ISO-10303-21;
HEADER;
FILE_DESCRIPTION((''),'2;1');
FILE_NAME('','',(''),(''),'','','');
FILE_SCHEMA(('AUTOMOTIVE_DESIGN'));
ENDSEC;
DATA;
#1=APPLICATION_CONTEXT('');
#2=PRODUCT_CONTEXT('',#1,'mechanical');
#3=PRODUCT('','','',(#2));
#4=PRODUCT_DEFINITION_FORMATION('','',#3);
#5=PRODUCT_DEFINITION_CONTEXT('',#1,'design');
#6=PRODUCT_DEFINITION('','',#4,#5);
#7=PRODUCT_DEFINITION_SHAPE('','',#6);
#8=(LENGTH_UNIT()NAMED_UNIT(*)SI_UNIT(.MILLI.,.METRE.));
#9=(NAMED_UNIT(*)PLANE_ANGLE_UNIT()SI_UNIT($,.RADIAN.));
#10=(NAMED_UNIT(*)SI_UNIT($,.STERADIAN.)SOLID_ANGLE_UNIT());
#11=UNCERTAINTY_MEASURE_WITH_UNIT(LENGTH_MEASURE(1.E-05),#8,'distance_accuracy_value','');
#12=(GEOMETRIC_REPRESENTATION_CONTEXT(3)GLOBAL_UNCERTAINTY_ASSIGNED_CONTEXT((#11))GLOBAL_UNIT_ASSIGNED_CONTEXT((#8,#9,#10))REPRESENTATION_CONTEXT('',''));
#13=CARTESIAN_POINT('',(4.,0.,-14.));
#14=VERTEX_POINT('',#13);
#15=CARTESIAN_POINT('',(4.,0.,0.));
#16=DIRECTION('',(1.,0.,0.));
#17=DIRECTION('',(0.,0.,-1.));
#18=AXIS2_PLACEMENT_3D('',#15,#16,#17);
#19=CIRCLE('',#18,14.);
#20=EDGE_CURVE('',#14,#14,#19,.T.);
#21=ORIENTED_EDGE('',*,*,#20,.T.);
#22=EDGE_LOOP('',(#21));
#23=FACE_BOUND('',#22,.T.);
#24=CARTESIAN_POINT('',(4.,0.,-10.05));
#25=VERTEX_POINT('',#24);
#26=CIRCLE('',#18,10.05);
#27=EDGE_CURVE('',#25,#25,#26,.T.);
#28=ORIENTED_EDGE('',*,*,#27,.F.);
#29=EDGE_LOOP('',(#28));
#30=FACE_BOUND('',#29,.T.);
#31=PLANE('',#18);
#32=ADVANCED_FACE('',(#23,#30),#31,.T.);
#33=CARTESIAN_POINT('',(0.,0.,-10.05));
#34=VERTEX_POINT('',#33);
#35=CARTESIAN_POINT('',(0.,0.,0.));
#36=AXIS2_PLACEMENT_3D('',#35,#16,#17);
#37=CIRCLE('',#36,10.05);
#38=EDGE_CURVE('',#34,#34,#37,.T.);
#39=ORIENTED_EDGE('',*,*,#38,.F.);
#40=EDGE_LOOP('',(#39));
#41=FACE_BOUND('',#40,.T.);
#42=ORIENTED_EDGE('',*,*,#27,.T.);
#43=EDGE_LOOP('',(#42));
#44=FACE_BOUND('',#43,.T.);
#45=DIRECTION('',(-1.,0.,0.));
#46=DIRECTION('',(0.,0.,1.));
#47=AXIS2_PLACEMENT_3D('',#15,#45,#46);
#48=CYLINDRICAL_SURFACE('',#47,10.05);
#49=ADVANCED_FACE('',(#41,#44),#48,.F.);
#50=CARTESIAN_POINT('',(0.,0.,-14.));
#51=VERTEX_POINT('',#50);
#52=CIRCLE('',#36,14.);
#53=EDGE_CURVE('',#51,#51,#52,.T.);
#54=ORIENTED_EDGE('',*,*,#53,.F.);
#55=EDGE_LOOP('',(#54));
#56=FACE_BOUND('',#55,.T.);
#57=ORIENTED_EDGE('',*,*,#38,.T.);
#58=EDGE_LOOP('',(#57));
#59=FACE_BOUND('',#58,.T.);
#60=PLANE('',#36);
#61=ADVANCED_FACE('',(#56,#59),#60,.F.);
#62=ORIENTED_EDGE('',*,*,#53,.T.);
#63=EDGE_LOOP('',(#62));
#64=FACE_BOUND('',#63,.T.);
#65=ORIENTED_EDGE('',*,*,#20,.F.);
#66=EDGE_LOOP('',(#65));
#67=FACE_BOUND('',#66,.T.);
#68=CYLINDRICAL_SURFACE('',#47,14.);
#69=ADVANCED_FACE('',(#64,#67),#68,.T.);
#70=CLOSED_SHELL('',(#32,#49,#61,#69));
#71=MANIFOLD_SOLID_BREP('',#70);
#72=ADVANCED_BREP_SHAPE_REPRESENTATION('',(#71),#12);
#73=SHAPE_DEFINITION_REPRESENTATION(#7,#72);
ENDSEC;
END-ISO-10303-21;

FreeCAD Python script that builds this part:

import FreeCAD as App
import Part
import Sketcher

V = App.Vector
Q = App.Units.Quantity

doc = App.newDocument("Part")
body = doc.addObject("PartDesign::Body", "Body")

sketch1 = doc.addObject("Sketcher::SketchObject", "Sketch")
body.addObject(sketch1)
sketch1.AttachmentSupport = (doc.YZ_Plane, [""])
sketch1.MapMode = "FlatFace"
sketch1.addGeometry([
    Part.Circle(V(0, 0, 0), V(0, 0, 1), 14),
    Part.Circle(V(0, 0, 0), V(0, 0, 1), 10),
], False)
sketch1.addConstraint([
    Sketcher.Constraint("Coincident", 0, 3, -1, 1),
    Sketcher.Constraint("Coincident", 1, 3, -1, 1),
    Sketcher.Constraint("Diameter", 0, Q("28 mm")),
    Sketcher.Constraint("Diameter", 1, Q("20.1 mm")),
])
pad1 = doc.addObject("PartDesign::Pad", "Pad")
body.addObject(pad1)
pad1.Profile = sketch1
pad1.Length = 4

doc.recompute()
